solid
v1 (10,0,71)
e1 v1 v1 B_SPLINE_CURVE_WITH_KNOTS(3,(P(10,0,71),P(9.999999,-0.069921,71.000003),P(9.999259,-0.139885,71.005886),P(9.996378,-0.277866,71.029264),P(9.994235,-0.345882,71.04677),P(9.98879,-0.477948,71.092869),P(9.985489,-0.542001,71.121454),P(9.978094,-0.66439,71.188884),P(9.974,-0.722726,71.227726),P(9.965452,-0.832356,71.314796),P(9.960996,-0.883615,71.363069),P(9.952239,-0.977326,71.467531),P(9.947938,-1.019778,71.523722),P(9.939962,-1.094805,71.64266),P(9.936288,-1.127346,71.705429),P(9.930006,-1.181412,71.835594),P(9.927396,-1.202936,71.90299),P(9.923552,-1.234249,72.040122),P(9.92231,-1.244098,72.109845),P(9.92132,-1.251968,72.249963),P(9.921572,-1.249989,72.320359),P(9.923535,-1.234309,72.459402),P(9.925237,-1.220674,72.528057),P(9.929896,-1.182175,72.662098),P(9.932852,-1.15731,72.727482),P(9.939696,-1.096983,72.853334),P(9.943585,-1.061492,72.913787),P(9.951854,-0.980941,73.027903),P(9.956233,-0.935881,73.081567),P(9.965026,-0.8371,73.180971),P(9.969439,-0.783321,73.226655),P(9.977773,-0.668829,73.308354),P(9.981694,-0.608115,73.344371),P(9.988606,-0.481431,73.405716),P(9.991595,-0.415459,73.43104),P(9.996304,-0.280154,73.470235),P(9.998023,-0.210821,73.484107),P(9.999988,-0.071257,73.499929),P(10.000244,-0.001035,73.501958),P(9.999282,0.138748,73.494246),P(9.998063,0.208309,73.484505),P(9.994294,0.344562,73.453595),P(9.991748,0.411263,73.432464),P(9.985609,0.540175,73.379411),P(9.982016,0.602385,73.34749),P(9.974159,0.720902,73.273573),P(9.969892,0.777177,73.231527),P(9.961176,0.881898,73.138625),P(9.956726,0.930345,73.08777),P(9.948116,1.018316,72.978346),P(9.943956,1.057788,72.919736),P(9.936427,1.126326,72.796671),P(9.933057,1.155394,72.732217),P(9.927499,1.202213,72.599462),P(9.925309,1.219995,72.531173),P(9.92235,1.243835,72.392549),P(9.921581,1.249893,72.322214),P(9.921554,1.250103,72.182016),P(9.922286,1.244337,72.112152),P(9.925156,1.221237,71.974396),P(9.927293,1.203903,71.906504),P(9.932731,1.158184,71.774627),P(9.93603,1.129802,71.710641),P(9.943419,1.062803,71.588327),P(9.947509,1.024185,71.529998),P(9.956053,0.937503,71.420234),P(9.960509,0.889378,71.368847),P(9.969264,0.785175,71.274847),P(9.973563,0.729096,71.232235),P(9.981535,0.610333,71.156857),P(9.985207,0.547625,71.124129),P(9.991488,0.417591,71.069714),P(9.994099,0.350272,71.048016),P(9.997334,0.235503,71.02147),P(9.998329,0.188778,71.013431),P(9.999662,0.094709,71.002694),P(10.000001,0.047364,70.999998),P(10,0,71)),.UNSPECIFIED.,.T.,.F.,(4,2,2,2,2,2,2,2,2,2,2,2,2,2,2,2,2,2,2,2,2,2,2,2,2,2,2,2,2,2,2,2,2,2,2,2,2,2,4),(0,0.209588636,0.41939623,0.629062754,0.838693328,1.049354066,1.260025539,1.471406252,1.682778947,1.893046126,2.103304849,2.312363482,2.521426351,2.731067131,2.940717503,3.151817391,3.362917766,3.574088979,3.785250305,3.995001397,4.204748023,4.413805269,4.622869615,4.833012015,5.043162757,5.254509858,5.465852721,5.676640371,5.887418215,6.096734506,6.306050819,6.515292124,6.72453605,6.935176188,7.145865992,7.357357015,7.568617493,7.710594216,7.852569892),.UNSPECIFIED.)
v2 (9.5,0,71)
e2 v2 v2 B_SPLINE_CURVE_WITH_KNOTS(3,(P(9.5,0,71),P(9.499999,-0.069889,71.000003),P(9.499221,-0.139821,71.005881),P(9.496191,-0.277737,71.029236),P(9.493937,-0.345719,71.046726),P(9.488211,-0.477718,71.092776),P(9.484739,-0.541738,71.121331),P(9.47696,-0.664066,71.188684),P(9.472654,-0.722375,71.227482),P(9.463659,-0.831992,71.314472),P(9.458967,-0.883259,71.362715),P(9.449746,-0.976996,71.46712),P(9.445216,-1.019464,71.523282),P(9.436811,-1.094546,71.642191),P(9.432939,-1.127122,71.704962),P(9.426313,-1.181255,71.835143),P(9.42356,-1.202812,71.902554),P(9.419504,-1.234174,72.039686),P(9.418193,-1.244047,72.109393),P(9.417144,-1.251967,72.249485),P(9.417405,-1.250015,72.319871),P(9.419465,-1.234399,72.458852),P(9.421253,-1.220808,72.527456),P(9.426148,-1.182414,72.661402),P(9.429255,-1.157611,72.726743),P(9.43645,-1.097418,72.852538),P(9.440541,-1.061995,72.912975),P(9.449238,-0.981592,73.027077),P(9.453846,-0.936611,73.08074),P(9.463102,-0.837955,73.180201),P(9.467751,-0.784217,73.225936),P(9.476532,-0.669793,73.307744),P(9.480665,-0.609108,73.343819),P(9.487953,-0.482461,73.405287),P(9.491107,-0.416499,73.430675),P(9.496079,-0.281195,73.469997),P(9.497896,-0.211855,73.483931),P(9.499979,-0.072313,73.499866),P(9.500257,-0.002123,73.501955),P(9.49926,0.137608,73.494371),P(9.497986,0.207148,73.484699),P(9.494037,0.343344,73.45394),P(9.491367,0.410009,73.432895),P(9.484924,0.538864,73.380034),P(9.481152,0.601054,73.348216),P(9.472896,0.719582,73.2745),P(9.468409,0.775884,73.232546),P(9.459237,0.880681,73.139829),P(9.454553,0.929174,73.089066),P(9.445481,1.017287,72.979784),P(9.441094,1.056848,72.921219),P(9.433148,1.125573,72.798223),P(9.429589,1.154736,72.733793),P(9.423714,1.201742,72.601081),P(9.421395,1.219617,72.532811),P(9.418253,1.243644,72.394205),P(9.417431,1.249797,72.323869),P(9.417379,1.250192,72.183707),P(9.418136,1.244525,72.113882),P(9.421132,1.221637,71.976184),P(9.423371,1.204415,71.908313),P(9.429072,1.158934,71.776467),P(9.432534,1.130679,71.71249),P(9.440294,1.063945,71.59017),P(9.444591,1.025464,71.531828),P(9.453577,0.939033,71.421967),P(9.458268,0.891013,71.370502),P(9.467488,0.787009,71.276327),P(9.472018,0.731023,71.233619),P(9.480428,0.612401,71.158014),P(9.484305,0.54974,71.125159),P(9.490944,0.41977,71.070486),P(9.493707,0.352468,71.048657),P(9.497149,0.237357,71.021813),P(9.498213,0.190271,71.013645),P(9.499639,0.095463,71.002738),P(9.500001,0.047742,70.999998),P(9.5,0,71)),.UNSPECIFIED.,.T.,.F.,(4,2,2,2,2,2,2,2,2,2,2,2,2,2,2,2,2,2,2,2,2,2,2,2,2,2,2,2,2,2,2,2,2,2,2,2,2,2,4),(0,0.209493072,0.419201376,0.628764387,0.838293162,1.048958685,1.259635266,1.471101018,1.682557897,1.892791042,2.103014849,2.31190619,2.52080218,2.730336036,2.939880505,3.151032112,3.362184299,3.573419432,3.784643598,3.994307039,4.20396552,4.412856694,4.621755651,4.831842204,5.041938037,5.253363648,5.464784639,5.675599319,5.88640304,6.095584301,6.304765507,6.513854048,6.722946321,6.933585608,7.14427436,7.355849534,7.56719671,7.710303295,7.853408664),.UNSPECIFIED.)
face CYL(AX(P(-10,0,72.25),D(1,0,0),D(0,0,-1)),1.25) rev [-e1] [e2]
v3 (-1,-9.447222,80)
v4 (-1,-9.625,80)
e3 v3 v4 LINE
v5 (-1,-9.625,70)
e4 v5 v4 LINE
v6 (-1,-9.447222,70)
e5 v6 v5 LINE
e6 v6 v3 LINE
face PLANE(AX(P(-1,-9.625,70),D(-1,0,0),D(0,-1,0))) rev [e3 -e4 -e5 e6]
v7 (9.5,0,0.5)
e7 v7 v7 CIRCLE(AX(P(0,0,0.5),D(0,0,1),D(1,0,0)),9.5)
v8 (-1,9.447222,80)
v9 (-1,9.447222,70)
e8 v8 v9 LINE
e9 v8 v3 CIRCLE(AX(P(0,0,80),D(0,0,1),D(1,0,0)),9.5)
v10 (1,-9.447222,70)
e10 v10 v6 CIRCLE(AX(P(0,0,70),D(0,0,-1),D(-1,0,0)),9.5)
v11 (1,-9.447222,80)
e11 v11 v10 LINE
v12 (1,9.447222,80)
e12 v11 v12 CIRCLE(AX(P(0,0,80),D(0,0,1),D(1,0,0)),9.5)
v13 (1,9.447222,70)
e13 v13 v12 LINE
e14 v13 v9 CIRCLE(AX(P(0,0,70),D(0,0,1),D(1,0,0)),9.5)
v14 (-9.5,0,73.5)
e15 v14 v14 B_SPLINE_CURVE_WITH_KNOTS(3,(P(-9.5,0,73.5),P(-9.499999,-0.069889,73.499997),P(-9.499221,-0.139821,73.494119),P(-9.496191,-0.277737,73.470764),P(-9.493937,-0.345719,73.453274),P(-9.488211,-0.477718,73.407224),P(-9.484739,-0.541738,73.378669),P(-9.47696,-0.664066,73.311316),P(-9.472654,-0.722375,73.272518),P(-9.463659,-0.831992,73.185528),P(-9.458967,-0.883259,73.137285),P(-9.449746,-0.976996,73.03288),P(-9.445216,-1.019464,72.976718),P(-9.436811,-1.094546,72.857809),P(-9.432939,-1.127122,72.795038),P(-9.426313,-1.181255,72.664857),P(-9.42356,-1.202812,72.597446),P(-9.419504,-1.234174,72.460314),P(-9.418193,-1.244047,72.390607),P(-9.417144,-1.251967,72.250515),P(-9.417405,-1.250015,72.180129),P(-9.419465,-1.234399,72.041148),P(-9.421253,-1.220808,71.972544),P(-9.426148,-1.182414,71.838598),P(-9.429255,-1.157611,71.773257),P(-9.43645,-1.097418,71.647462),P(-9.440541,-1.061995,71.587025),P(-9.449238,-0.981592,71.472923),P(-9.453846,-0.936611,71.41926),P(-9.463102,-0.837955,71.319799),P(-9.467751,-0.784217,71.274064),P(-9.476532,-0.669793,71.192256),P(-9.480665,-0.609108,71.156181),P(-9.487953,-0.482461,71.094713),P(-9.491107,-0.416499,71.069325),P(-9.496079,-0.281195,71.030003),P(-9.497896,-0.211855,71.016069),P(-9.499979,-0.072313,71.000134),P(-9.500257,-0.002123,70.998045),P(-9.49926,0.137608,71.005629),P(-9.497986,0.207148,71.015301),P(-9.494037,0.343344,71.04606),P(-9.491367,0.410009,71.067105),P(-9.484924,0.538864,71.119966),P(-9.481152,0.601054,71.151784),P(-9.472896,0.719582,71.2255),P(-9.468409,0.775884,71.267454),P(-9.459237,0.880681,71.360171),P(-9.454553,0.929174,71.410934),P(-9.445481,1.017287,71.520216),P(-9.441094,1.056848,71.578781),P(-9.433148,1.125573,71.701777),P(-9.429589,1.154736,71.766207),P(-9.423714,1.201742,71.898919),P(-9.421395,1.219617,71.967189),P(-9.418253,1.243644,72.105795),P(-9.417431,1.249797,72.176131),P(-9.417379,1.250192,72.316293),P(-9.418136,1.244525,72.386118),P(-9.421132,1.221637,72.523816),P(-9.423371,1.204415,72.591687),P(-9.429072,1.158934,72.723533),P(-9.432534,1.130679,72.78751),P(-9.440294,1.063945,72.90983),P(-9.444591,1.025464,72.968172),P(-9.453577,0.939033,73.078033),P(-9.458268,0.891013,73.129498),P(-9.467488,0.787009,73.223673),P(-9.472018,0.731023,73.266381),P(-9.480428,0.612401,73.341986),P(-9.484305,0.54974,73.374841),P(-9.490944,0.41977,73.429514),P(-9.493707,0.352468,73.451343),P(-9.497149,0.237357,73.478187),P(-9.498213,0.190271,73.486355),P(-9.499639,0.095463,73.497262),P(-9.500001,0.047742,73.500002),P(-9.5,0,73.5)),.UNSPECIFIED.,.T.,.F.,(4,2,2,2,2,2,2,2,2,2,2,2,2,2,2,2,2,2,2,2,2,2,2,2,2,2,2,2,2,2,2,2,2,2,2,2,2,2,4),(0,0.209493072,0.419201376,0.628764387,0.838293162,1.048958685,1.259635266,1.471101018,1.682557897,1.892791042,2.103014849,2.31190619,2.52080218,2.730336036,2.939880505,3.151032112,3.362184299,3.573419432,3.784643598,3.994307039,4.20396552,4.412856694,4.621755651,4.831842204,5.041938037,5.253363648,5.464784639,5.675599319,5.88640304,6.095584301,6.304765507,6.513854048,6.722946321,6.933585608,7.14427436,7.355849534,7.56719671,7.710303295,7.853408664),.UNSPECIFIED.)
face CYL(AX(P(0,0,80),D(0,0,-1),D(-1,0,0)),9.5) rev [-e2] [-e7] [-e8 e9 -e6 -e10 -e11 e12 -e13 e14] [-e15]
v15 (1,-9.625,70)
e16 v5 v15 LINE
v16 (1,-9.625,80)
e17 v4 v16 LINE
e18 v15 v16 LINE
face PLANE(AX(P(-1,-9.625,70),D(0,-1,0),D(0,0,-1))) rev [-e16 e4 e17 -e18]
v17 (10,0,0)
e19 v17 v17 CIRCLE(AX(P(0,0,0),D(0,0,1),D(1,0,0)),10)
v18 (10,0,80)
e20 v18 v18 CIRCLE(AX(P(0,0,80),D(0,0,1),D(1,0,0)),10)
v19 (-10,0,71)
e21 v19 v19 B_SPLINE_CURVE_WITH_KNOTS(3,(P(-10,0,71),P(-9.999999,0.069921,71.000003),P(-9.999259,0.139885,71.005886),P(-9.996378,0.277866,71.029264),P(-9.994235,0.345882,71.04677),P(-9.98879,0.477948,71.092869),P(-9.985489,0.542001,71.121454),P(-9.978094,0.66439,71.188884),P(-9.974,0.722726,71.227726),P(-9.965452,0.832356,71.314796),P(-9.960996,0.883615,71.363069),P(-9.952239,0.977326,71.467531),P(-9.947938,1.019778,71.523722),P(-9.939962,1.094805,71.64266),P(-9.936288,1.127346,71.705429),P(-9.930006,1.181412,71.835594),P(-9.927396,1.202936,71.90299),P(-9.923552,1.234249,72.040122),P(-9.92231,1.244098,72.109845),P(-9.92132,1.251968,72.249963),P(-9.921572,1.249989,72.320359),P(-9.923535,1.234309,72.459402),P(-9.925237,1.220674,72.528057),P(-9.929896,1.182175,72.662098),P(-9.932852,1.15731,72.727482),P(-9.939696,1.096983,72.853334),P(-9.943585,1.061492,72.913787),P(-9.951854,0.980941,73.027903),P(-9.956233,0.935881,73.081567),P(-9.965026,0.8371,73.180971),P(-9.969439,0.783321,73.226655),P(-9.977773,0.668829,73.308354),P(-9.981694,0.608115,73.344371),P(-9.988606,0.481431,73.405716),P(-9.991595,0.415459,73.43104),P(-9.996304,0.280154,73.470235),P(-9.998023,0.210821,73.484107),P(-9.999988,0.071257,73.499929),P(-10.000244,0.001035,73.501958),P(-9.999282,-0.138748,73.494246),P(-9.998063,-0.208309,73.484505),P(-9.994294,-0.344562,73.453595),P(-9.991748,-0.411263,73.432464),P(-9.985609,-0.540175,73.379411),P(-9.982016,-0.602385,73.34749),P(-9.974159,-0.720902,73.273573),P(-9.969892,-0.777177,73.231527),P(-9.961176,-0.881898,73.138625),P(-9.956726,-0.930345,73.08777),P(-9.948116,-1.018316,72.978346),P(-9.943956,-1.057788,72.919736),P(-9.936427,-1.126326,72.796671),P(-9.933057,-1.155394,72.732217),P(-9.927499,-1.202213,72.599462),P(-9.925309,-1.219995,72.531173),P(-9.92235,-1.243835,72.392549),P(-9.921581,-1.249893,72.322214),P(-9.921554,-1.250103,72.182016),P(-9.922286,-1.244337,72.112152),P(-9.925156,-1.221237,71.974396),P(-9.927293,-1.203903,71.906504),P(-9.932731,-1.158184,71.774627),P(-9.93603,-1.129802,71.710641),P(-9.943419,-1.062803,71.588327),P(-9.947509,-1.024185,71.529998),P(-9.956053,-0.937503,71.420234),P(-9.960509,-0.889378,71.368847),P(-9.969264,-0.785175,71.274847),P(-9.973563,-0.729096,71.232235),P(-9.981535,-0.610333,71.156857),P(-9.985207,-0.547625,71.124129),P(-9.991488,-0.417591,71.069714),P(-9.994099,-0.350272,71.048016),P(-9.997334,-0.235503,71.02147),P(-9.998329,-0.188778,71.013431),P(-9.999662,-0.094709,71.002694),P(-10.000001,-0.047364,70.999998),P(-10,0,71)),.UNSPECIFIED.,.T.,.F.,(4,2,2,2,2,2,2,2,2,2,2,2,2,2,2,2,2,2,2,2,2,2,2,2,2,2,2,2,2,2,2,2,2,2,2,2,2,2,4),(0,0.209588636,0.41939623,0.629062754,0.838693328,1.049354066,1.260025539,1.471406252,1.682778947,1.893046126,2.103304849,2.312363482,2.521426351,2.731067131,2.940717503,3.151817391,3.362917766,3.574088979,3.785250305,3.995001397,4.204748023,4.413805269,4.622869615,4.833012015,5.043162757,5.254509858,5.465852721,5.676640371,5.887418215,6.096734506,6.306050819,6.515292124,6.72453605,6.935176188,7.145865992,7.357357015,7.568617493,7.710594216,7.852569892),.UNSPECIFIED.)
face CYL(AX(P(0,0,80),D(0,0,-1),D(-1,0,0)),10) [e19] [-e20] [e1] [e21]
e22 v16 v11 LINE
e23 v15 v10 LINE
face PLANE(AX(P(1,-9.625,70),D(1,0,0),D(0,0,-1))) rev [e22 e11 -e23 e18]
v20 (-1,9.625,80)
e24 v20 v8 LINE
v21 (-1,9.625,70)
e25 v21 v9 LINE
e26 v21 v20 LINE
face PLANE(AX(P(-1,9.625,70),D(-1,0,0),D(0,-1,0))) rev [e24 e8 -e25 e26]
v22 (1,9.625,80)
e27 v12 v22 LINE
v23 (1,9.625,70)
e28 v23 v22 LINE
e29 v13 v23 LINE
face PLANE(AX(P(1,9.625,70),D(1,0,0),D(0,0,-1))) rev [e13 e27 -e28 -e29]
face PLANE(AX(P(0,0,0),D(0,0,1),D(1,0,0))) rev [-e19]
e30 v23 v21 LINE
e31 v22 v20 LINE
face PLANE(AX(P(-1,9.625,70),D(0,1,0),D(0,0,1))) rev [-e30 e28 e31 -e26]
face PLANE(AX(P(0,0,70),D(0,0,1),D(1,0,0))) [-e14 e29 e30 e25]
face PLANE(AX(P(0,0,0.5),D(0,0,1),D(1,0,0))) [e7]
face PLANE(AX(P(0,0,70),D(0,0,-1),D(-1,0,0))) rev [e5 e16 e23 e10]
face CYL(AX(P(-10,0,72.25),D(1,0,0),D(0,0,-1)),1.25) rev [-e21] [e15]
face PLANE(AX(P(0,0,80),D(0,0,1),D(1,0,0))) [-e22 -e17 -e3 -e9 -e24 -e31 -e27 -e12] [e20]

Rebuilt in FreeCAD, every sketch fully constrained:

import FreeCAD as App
import Part
import Sketcher
from FreeCAD import Vector


def faces_at(feature, points):
    """Names of the faces that lie closest to the given points."""
    faces = feature.Shape.Faces
    near = lambda p: min(range(len(faces)), key=lambda i: faces[i].distToShape(Part.Vertex(*p))[0])
    return sorted({f"Face{near(p) + 1}" for p in points})


def add_polygon(sketch, points):
    """Adds a closed chain of lines whose ends are joined by coincident constraints."""
    first, n = sketch.GeometryCount, len(points)
    for a, b in zip(points, points[1:] + points[:1]):
        sketch.addGeometry(Part.LineSegment(App.Vector(*a, 0), App.Vector(*b, 0)), False)
    for i in range(n):
        sketch.addConstraint(Sketcher.Constraint("Coincident", first + i, 2, first + (i + 1) % n, 1))

doc = App.newDocument("Part")
body = doc.addObject("PartDesign::Body", "Body")

sketch1 = body.newObject("Sketcher::SketchObject", "Sketch")
sketch1.AttachmentSupport = (doc.getObject("XY_Plane"), [""])
sketch1.MapMode = "FlatFace"
sketch1.addGeometry(Part.Circle(Vector(0, 0, 0), Vector(0, 0, 1), 10), False)
sketch1.addConstraint(Sketcher.Constraint("Coincident", 0, 3, -1, 1))
sketch1.addConstraint(Sketcher.Constraint("Diameter", 0, 20.0))
pad1 = body.newObject("PartDesign::Pad", "Pad")
pad1.Profile = sketch1
pad1.Length = 80
doc.recompute()

thickness = body.newObject("PartDesign::Thickness", "Thickness")
thickness.Base = (pad1, faces_at(pad1, [(0, 0, 80)]))
thickness.Value = 0.5
thickness.Reversed = True
thickness.Join = "Intersection"

sketch2 = body.newObject("Sketcher::SketchObject", "Sketch001")
sketch2.AttachmentSupport = (doc.getObject("YZ_Plane"), [""])
sketch2.MapMode = "FlatFace"
sketch2.AttachmentOffset = App.Placement(Vector(0, 0, 10), App.Rotation())
sketch2.addGeometry(Part.Circle(Vector(0, 72.2, 0), Vector(0, 0, 1), 1.2), False)
sketch2.addConstraint(Sketcher.Constraint("PointOnObject", 0, 3, -2))
sketch2.addConstraint(Sketcher.Constraint("Diameter", 0, 2.5))
sketch2.addConstraint(Sketcher.Constraint("DistanceY", -1, 1, 0, 3, 72.25))
pocket1 = body.newObject("PartDesign::Pocket", "Pocket")
pocket1.Profile = sketch2
pocket1.Type = "ThroughAll"

sketch3 = body.newObject("Sketcher::SketchObject", "Sketch002")
sketch3.AttachmentSupport = (doc.getObject("XY_Plane"), [""])
sketch3.MapMode = "FlatFace"
sketch3.AttachmentOffset = App.Placement(Vector(0, 0, 80), App.Rotation())
add_polygon(sketch3, [(-1, -9.38), (-1, -9.62), (1, -9.62), (1, -9.38)])
add_polygon(sketch3, [(-1, 9.62), (-1, 9.38), (1, 9.38), (1, 9.62)])
sketch3.addConstraint(Sketcher.Constraint("Vertical", 0))
sketch3.addConstraint(Sketcher.Constraint("Horizontal", 1))
sketch3.addConstraint(Sketcher.Constraint("Vertical", 2))
sketch3.addConstraint(Sketcher.Constraint("Horizontal", 3))
sketch3.addConstraint(Sketcher.Constraint("Vertical", 4))
sketch3.addConstraint(Sketcher.Constraint("Horizontal", 5))
sketch3.addConstraint(Sketcher.Constraint("Vertical", 6))
sketch3.addConstraint(Sketcher.Constraint("Horizontal", 7))
sketch3.addConstraint(Sketcher.Constraint("Symmetric", 2, 2, 4, 2, -1, 1))
sketch3.addConstraint(Sketcher.Constraint("Symmetric", 0, 2, 6, 2, -1, 1))
sketch3.addConstraint(Sketcher.Constraint("Vertical", 3, 2, 4, 2))
sketch3.addConstraint(Sketcher.Constraint("DistanceX", 1, 1, 1, 2, 2.0))
sketch3.addConstraint(Sketcher.Constraint("DistanceY", 0, 2, 4, 2, 19.0))
sketch3.addConstraint(Sketcher.Constraint("DistanceY", 0, 2, 0, 1, 0.25))
pocket2 = body.newObject("PartDesign::Pocket", "Pocket001")
pocket2.Profile = sketch3
pocket2.Length = 10

doc.recompute()
